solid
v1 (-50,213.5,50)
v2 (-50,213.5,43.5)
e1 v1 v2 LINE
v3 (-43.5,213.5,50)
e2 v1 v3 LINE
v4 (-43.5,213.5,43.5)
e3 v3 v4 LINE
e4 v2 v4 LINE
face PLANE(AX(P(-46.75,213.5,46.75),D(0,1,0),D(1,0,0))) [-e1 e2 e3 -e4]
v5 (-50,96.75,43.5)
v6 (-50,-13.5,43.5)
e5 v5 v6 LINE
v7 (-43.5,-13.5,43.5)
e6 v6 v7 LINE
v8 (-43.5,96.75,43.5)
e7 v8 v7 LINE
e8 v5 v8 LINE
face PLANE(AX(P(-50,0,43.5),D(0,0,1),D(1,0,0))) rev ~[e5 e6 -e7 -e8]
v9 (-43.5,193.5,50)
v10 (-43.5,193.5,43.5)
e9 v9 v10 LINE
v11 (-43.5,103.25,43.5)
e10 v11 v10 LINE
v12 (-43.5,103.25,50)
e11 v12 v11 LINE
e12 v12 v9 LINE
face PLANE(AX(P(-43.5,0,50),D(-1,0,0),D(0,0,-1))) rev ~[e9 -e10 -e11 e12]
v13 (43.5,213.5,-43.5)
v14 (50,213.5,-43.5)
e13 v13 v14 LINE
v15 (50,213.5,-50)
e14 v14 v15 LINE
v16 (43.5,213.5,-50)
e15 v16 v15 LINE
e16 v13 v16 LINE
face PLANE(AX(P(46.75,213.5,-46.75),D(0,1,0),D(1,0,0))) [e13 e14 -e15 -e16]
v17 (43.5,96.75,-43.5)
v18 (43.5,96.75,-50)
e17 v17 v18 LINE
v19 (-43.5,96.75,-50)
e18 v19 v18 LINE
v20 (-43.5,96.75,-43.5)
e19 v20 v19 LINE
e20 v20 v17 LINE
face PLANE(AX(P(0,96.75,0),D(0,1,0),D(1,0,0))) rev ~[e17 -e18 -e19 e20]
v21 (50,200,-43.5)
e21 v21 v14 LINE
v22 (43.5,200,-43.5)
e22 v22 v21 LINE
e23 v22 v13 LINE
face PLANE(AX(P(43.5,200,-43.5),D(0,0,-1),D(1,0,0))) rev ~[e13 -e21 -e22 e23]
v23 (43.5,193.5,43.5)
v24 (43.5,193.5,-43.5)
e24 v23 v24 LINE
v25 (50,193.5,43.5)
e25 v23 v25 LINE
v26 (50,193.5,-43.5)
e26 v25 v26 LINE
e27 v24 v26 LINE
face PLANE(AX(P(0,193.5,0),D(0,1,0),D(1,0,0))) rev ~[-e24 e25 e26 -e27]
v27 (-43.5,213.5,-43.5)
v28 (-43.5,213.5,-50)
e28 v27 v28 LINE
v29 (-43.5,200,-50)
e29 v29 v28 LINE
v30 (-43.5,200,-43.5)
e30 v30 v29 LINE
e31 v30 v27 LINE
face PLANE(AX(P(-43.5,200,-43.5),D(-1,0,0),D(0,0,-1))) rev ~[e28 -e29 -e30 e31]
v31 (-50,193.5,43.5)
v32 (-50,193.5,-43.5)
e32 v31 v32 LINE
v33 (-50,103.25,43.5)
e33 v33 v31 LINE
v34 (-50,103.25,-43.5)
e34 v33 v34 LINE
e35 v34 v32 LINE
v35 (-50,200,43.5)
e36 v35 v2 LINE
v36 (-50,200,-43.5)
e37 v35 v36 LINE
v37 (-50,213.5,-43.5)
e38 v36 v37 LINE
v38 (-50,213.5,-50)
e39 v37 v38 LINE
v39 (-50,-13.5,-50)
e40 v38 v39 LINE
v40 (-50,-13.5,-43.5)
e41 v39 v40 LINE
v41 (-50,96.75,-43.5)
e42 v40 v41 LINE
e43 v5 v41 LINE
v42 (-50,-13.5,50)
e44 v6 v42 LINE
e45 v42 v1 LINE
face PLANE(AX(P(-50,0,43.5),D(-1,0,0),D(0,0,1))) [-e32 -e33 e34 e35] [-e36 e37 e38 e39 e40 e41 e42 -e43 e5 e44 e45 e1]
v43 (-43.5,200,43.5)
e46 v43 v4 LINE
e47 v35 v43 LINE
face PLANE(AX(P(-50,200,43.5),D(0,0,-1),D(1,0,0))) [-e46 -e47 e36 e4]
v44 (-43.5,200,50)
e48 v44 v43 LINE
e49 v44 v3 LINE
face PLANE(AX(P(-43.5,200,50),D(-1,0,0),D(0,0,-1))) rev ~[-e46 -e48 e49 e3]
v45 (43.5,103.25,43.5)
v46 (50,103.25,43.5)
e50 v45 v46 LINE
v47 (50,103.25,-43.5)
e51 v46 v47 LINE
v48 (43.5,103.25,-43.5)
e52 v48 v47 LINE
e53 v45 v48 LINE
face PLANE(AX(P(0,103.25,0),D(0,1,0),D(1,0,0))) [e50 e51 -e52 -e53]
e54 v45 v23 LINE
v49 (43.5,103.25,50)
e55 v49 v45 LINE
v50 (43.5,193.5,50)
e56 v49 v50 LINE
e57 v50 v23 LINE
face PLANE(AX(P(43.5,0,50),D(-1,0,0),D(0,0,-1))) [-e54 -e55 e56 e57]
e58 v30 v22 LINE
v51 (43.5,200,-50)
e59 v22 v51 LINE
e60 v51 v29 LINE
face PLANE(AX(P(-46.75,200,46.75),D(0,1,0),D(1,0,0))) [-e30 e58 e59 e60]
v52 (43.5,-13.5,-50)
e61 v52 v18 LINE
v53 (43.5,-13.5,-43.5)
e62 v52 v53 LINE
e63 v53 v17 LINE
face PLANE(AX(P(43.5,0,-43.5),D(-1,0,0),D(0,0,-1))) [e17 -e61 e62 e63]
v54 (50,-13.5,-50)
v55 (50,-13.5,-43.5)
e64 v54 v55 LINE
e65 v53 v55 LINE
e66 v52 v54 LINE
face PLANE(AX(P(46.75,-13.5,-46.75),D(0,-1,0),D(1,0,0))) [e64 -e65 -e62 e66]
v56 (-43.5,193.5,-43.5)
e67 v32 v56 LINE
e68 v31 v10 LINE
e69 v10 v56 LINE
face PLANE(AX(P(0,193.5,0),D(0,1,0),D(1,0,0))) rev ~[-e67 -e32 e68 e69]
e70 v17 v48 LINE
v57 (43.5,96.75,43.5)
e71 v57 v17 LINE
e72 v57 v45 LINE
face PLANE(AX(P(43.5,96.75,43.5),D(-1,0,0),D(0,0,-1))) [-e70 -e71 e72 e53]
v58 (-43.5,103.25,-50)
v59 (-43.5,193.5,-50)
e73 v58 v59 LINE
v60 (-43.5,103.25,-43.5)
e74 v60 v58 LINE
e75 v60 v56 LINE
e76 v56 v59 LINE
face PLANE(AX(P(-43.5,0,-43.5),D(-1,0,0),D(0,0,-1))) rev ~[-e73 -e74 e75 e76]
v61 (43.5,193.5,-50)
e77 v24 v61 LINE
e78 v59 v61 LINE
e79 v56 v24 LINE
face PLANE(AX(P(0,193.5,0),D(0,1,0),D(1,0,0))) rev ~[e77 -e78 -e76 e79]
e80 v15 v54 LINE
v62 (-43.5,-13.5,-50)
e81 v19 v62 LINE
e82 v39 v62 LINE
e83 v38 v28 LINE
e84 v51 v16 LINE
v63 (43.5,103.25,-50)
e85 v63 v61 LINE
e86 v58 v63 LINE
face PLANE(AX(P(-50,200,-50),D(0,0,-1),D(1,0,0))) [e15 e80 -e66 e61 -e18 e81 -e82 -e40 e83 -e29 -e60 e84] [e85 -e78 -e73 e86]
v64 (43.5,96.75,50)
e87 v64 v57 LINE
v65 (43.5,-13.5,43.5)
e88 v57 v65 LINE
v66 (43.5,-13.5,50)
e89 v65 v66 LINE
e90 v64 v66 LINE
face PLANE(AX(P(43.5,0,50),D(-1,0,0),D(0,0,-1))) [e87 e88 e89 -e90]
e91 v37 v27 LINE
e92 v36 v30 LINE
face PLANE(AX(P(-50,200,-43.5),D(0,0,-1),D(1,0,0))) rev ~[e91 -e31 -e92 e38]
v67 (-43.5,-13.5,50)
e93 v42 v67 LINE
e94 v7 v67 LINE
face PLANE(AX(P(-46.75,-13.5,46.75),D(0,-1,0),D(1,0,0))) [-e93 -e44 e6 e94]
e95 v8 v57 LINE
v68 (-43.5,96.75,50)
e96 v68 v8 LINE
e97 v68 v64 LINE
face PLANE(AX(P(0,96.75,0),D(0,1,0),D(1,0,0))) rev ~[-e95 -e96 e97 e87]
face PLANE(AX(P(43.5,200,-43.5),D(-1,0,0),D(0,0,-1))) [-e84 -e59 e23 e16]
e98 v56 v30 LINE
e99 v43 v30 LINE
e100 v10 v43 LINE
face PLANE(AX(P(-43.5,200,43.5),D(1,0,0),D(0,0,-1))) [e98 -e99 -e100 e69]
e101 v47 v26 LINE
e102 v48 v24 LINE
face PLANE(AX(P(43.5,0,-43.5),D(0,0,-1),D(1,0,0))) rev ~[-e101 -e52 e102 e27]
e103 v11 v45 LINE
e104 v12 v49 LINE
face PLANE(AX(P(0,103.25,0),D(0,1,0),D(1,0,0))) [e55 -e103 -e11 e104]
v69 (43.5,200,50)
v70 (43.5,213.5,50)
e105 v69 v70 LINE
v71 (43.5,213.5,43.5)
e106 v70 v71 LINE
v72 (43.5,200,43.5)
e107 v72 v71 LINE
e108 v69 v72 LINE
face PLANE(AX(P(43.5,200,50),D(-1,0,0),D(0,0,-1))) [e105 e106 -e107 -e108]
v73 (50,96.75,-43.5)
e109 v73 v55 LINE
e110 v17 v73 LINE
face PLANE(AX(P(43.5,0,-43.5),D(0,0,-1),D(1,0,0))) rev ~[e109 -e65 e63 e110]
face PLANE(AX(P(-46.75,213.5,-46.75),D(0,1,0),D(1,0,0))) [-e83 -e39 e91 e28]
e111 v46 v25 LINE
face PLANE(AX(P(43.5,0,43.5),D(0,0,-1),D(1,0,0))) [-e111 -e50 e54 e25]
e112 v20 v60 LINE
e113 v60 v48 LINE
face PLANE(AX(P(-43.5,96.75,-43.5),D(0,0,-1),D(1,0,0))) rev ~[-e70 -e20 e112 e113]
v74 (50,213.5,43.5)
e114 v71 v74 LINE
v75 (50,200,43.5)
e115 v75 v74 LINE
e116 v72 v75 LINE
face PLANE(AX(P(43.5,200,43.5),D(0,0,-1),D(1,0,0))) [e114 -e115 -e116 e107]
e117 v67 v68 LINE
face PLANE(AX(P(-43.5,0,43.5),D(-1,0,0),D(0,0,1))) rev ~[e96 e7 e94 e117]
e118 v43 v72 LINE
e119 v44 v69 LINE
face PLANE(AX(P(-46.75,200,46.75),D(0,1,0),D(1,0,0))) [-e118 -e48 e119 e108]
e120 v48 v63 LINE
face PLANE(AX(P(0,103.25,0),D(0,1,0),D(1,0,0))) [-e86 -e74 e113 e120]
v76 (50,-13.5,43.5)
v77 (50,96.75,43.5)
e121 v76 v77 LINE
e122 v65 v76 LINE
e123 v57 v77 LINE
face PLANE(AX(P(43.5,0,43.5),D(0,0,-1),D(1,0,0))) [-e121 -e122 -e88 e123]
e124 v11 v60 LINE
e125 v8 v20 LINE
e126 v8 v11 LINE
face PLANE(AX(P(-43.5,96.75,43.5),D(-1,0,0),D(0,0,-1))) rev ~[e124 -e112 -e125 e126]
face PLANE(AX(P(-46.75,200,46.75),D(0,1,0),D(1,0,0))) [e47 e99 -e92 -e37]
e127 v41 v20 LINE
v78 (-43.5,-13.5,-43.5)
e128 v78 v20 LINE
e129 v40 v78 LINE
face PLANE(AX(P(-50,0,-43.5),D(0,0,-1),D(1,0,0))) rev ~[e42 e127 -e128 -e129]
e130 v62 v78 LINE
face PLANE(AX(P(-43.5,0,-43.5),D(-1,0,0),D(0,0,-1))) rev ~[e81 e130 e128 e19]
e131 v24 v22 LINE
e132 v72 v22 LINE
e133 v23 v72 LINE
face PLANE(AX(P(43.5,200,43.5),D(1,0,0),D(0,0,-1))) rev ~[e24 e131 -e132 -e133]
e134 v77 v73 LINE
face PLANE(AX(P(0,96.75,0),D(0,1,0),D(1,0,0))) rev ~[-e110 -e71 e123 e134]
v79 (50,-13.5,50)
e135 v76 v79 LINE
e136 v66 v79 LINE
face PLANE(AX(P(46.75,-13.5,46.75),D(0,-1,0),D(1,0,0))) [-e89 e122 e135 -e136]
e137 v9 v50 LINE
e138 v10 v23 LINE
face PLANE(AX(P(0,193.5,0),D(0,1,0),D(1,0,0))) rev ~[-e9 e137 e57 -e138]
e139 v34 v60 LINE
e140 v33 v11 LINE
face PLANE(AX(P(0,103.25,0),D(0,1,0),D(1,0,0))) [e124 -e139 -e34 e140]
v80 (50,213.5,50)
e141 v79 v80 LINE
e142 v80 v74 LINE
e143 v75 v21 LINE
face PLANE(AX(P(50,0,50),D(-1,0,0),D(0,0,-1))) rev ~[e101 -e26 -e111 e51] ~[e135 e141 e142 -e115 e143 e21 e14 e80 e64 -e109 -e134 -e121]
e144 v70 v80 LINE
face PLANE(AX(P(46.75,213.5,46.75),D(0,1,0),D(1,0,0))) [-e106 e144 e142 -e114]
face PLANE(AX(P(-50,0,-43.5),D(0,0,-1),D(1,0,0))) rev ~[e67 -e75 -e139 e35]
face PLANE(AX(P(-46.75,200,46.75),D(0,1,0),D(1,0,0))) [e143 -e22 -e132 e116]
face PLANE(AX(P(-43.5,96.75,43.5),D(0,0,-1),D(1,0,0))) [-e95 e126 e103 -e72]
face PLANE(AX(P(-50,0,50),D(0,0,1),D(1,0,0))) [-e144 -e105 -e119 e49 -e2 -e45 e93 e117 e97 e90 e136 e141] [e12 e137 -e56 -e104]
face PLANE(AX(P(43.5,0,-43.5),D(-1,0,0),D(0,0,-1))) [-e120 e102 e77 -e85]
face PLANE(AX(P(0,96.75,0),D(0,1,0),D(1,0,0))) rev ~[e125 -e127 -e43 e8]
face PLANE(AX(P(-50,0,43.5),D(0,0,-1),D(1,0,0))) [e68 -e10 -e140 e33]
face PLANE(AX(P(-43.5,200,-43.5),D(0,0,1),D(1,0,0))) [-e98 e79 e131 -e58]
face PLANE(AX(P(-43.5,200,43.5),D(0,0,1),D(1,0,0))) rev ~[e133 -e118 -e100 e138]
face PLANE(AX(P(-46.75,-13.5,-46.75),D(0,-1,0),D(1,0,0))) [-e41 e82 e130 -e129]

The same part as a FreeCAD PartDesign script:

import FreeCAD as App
import Part
import Sketcher
from FreeCAD import Vector
Q = App.Units.Quantity


def add_polygon(sketch, points):
    """Adds a closed chain of lines whose ends are joined by coincident constraints."""
    first, n = sketch.GeometryCount, len(points)
    for a, b in zip(points, points[1:] + points[:1]):
        sketch.addGeometry(Part.LineSegment(App.Vector(*a, 0), App.Vector(*b, 0)), False)
    for i in range(n):
        sketch.addConstraint(Sketcher.Constraint("Coincident", first + i, 2, first + (i + 1) % n, 1))

doc = App.newDocument("Part")
params = doc.addObject("Spreadsheet::Sheet", "Params")
for row, (alias, value) in enumerate([
    ("sketch1_width", "6.5 mm"),
    ("pad1_length", "200 mm"),
    ("sketch2_width", "6.5 mm"),
    ("pad2_length", "200 mm"),
    ("sketch3_width", "6.5 mm"),
    ("pad3_length", "200 mm"),
    ("sketch4_width", "6.5 mm"),
    ("pad4_length", "200 mm"),
    ("sketch5_width", "100 mm"),
    ("sketch5_width2", "87 mm"),
    ("pad5_length", "6.5 mm"),
    ("sketch6_width", "100 mm"),
    ("sketch6_width2", "87 mm"),
    ("pad6_length", "3.25 mm"),
    ("pad6_length2", "3.25 mm"),
    ("sketch7_width", "6.5 mm"),
    ("pad7_length", "13.5 mm"),
    ("sketch8_width", "6.5 mm"),
    ("pad8_length", "13.5 mm"),
], start=1):
    params.set(f"A{row}", alias)
    params.set(f"B{row}", "=" + value)
    params.setAlias(f"B{row}", alias)

body = doc.addObject("PartDesign::Body", "Body")

sketch1 = doc.addObject("Sketcher::SketchObject", "Sketch")
body.addObject(sketch1)
sketch1.AttachmentSupport = (doc.XZ_Plane, [""])
sketch1.MapMode = "FlatFace"
add_polygon(sketch1, [(-50, -50), (-50, -43.5), (-43.5, -43.5), (-43.5, -50)])
sketch1.addConstraint([
    Sketcher.Constraint("Vertical", 0),
    Sketcher.Constraint("Horizontal", 1),
    Sketcher.Constraint("Vertical", 2),
    Sketcher.Constraint("Horizontal", 3),
    Sketcher.Constraint("Equal", 3, 0),
    Sketcher.Constraint("DistanceX", 1, 1, 1, 2, Q("6.5 mm")),
    Sketcher.Constraint("DistanceX", 0, 2, -1, 1, Q("50 mm")),
    Sketcher.Constraint("DistanceY", 2, 2, -1, 1, Q("50 mm")),
])
sketch1.setExpression("Constraints[9]", "Params.sketch1_width")
pad1 = doc.addObject("PartDesign::Pad", "Pad")
body.addObject(pad1)
pad1.Profile = sketch1
pad1.setExpression("Length", "Params.pad1_length")
pad1.Reversed = True
body2 = doc.addObject("PartDesign::Body", "Body001")

sketch2 = doc.addObject("Sketcher::SketchObject", "Sketch001")
body2.addObject(sketch2)
sketch2.AttachmentSupport = (doc.getObject("XZ_Plane001"), [""])
sketch2.MapMode = "FlatFace"
add_polygon(sketch2, [(43.5, -50), (43.5, -43.5), (50, -43.5), (50, -50)])
sketch2.addConstraint([
    Sketcher.Constraint("Vertical", 0),
    Sketcher.Constraint("Horizontal", 1),
    Sketcher.Constraint("Vertical", 2),
    Sketcher.Constraint("Horizontal", 3),
    Sketcher.Constraint("Equal", 3, 0),
    Sketcher.Constraint("DistanceX", 1, 1, 1, 2, Q("6.5 mm")),
    Sketcher.Constraint("DistanceX", -1, 1, 1, 2, Q("50 mm")),
    Sketcher.Constraint("DistanceY", 2, 2, -1, 1, Q("50 mm")),
])
sketch2.setExpression("Constraints[9]", "Params.sketch2_width")
pad2 = doc.addObject("PartDesign::Pad", "Pad001")
body2.addObject(pad2)
pad2.Profile = sketch2
pad2.setExpression("Length", "Params.pad2_length")
pad2.Reversed = True
body3 = doc.addObject("PartDesign::Body", "Body002")

sketch3 = doc.addObject("Sketcher::SketchObject", "Sketch002")
body3.addObject(sketch3)
sketch3.AttachmentSupport = (doc.getObject("XZ_Plane002"), [""])
sketch3.MapMode = "FlatFace"
add_polygon(sketch3, [(43.5, 43.5), (43.5, 50), (50, 50), (50, 43.5)])
sketch3.addConstraint([
    Sketcher.Constraint("Vertical", 0),
    Sketcher.Constraint("Horizontal", 1),
    Sketcher.Constraint("Vertical", 2),
    Sketcher.Constraint("Horizontal", 3),
    Sketcher.Constraint("Equal", 3, 0),
    Sketcher.Constraint("DistanceX", 1, 1, 1, 2, Q("6.5 mm")),
    Sketcher.Constraint("DistanceY", -1, 1, 0, 2, Q("50 mm")),
    Sketcher.Constraint("DistanceX", -1, 1, 1, 2, Q("50 mm")),
])
sketch3.setExpression("Constraints[9]", "Params.sketch3_width")
pad3 = doc.addObject("PartDesign::Pad", "Pad002")
body3.addObject(pad3)
pad3.Profile = sketch3
pad3.setExpression("Length", "Params.pad3_length")
pad3.Reversed = True
body4 = doc.addObject("PartDesign::Body", "Body003")

sketch4 = doc.addObject("Sketcher::SketchObject", "Sketch003")
body4.addObject(sketch4)
sketch4.AttachmentSupport = (doc.getObject("XZ_Plane003"), [""])
sketch4.MapMode = "FlatFace"
add_polygon(sketch4, [(-50, 43.5), (-50, 50), (-43.5, 50), (-43.5, 43.5)])
sketch4.addConstraint([
    Sketcher.Constraint("Vertical", 0),
    Sketcher.Constraint("Horizontal", 1),
    Sketcher.Constraint("Vertical", 2),
    Sketcher.Constraint("Horizontal", 3),
    Sketcher.Constraint("Equal", 3, 0),
    Sketcher.Constraint("DistanceX", 1, 1, 1, 2, Q("6.5 mm")),
    Sketcher.Constraint("DistanceX", 0, 2, -1, 1, Q("50 mm")),
    Sketcher.Constraint("DistanceY", -1, 1, 0, 2, Q("50 mm")),
])
sketch4.setExpression("Constraints[9]", "Params.sketch4_width")
pad4 = doc.addObject("PartDesign::Pad", "Pad003")
body4.addObject(pad4)
pad4.Profile = sketch4
pad4.setExpression("Length", "Params.pad4_length")
pad4.Reversed = True
body.AllowCompound = True
doc.recompute()

boolean = doc.addObject("PartDesign::Boolean", "Boolean")
body.addObject(boolean)
boolean.Type = "Fuse"
boolean.addObjects([body2])
doc.recompute()

boolean2 = doc.addObject("PartDesign::Boolean", "Boolean001")
body.addObject(boolean2)
boolean2.Type = "Fuse"
boolean2.addObjects([body3])
doc.recompute()

boolean3 = doc.addObject("PartDesign::Boolean", "Boolean002")
body.addObject(boolean3)
boolean3.Type = "Fuse"
boolean3.addObjects([body4])

sketch5 = doc.addObject("Sketcher::SketchObject", "Sketch004")
body.addObject(sketch5)
sketch5.AttachmentSupport = (doc.XZ_Plane, [""])
sketch5.MapMode = "FlatFace"
sketch5.AttachmentOffset = App.Placement(Vector(0, 0, -200), App.Rotation())
add_polygon(sketch5, [(-50, -50), (-50, 50), (50, 50), (50, -50)])
add_polygon(sketch5, [(43.5, 43.5), (-43.5, 43.5), (-43.5, -43.5), (43.5, -43.5)])
sketch5.addConstraint([
    Sketcher.Constraint("Vertical", 0),
    Sketcher.Constraint("Horizontal", 1),
    Sketcher.Constraint("Vertical", 2),
    Sketcher.Constraint("Horizontal", 3),
    Sketcher.Constraint("Horizontal", 4),
    Sketcher.Constraint("Vertical", 5),
    Sketcher.Constraint("Horizontal", 6),
    Sketcher.Constraint("Vertical", 7),
    Sketcher.Constraint("Symmetric", 0, 2, 2, 2, -1, 1),
    Sketcher.Constraint("Symmetric", 4, 2, 6, 2, -1, 1),
    Sketcher.Constraint("Equal", 3, 0),
    Sketcher.Constraint("Equal", 6, 5),
    Sketcher.Constraint("DistanceX", 1, 1, 1, 2, Q("100 mm")),
    Sketcher.Constraint("DistanceX", 4, 2, 4, 1, Q("87 mm")),
])
sketch5.setExpression("Constraints[20]", "Params.sketch5_width")
sketch5.setExpression("Constraints[21]", "Params.sketch5_width2")
pad5 = doc.addObject("PartDesign::Pad", "Pad004")
body.addObject(pad5)
pad5.Profile = sketch5
pad5.setExpression("Length", "Params.pad5_length")

sketch6 = doc.addObject("Sketcher::SketchObject", "Sketch005")
body.addObject(sketch6)
sketch6.AttachmentSupport = (doc.XZ_Plane, [""])
sketch6.MapMode = "FlatFace"
sketch6.AttachmentOffset = App.Placement(Vector(0, 0, -100), App.Rotation())
add_polygon(sketch6, [(-50, -50), (-50, 50), (50, 50), (50, -50)])
add_polygon(sketch6, [(43.5, 43.5), (-43.5, 43.5), (-43.5, -43.5), (43.5, -43.5)])
sketch6.addConstraint([
    Sketcher.Constraint("Vertical", 0),
    Sketcher.Constraint("Horizontal", 1),
    Sketcher.Constraint("Vertical", 2),
    Sketcher.Constraint("Horizontal", 3),
    Sketcher.Constraint("Horizontal", 4),
    Sketcher.Constraint("Vertical", 5),
    Sketcher.Constraint("Horizontal", 6),
    Sketcher.Constraint("Vertical", 7),
    Sketcher.Constraint("Symmetric", 0, 2, 2, 2, -1, 1),
    Sketcher.Constraint("Symmetric", 4, 2, 6, 2, -1, 1),
    Sketcher.Constraint("Equal", 3, 0),
    Sketcher.Constraint("Equal", 6, 5),
    Sketcher.Constraint("DistanceX", 1, 1, 1, 2, Q("100 mm")),
    Sketcher.Constraint("DistanceX", 4, 2, 4, 1, Q("87 mm")),
])
sketch6.setExpression("Constraints[20]", "Params.sketch6_width")
sketch6.setExpression("Constraints[21]", "Params.sketch6_width2")
pad6 = doc.addObject("PartDesign::Pad", "Pad005")
body.addObject(pad6)
pad6.Profile = sketch6
pad6.Type = "TwoLengths"
pad6.setExpression("Length", "Params.pad6_length")
pad6.setExpression("Length2", "Params.pad6_length2")
pad6.Reversed = True

sketch7 = doc.addObject("Sketcher::SketchObject", "Sketch006")
body.addObject(sketch7)
sketch7.AttachmentSupport = (doc.XZ_Plane, [""])
sketch7.MapMode = "FlatFace"
sketch7.AttachmentOffset = App.Placement(Vector(0, 0, -200), App.Rotation())
add_polygon(sketch7, [(-50, -50), (-50, -43.5), (-43.5, -43.5), (-43.5, -50)])
add_polygon(sketch7, [(43.5, -50), (43.5, -43.5), (50, -43.5), (50, -50)])
add_polygon(sketch7, [(43.5, 43.5), (43.5, 50), (50, 50), (50, 43.5)])
add_polygon(sketch7, [(-50, 43.5), (-50, 50), (-43.5, 50), (-43.5, 43.5)])
sketch7.addConstraint([
    Sketcher.Constraint("Vertical", 0),
    Sketcher.Constraint("Horizontal", 1),
    Sketcher.Constraint("Vertical", 2),
    Sketcher.Constraint("Horizontal", 3),
    Sketcher.Constraint("Vertical", 4),
    Sketcher.Constraint("Horizontal", 5),
    Sketcher.Constraint("Vertical", 6),
    Sketcher.Constraint("Horizontal", 7),
    Sketcher.Constraint("Vertical", 8),
    Sketcher.Constraint("Horizontal", 9),
    Sketcher.Constraint("Vertical", 10),
    Sketcher.Constraint("Horizontal", 11),
    Sketcher.Constraint("Vertical", 12),
    Sketcher.Constraint("Horizontal", 13),
    Sketcher.Constraint("Vertical", 14),
    Sketcher.Constraint("Horizontal", 15),
    Sketcher.Constraint("Symmetric", 2, 2, 8, 2, -1, 1),
    Sketcher.Constraint("Symmetric", 0, 2, 10, 2, -1, 1),
    Sketcher.Constraint("Symmetric", 6, 2, 12, 2, -1, 1),
    Sketcher.Constraint("Symmetric", 4, 2, 14, 2, -1, 1),
    Sketcher.Constraint("Symmetric", 1, 2, 4, 2, -2),
    Sketcher.Constraint("Symmetric", 3, 2, 6, 2, -2),
    Sketcher.Constraint("Equal", 15, 0),
    Sketcher.Constraint("DistanceX", 1, 1, 1, 2, Q("6.5 mm")),
    Sketcher.Constraint("DistanceX", 0, 2, -1, 1, Q("50 mm")),
    Sketcher.Constraint("DistanceY", 2, 2, -1, 1, Q("50 mm")),
])
sketch7.setExpression("Constraints[39]", "Params.sketch7_width")
pad7 = doc.addObject("PartDesign::Pad", "Pad006")
body.addObject(pad7)
pad7.Profile = sketch7
pad7.setExpression("Length", "Params.pad7_length")
pad7.Reversed = True

sketch8 = doc.addObject("Sketcher::SketchObject", "Sketch007")
body.addObject(sketch8)
sketch8.AttachmentSupport = (doc.XZ_Plane, [""])
sketch8.MapMode = "FlatFace"
add_polygon(sketch8, [(-50, 50), (-50, 43.5), (-43.5, 43.5), (-43.5, 50)])
add_polygon(sketch8, [(43.5, 50), (43.5, 43.5), (50, 43.5), (50, 50)])
add_polygon(sketch8, [(43.5, -43.5), (43.5, -50), (50, -50), (50, -43.5)])
add_polygon(sketch8, [(-50, -43.5), (-50, -50), (-43.5, -50), (-43.5, -43.5)])
sketch8.addConstraint([
    Sketcher.Constraint("Vertical", 0),
    Sketcher.Constraint("Horizontal", 1),
    Sketcher.Constraint("Vertical", 2),
    Sketcher.Constraint("Horizontal", 3),
    Sketcher.Constraint("Vertical", 4),
    Sketcher.Constraint("Horizontal", 5),
    Sketcher.Constraint("Vertical", 6),
    Sketcher.Constraint("Horizontal", 7),
    Sketcher.Constraint("Vertical", 8),
    Sketcher.Constraint("Horizontal", 9),
    Sketcher.Constraint("Vertical", 10),
    Sketcher.Constraint("Horizontal", 11),
    Sketcher.Constraint("Vertical", 12),
    Sketcher.Constraint("Horizontal", 13),
    Sketcher.Constraint("Vertical", 14),
    Sketcher.Constraint("Horizontal", 15),
    Sketcher.Constraint("Symmetric", 2, 2, 8, 2, -1, 1),
    Sketcher.Constraint("Symmetric", 0, 2, 10, 2, -1, 1),
    Sketcher.Constraint("Symmetric", 6, 2, 12, 2, -1, 1),
    Sketcher.Constraint("Symmetric", 4, 2, 14, 2, -1, 1),
    Sketcher.Constraint("Symmetric", 1, 2, 4, 2, -2),
    Sketcher.Constraint("Symmetric", 3, 2, 6, 2, -2),
    Sketcher.Constraint("Equal", 15, 0),
    Sketcher.Constraint("DistanceX", 1, 1, 1, 2, Q("6.5 mm")),
    Sketcher.Constraint("DistanceX", 0, 2, -1, 1, Q("50 mm")),
    Sketcher.Constraint("DistanceY", -1, 1, 2, 2, Q("50 mm")),
])
sketch8.setExpression("Constraints[39]", "Params.sketch8_width")
pad8 = doc.addObject("PartDesign::Pad", "Pad007")
body.addObject(pad8)
pad8.Profile = sketch8
pad8.setExpression("Length", "Params.pad8_length")

doc.recompute()
